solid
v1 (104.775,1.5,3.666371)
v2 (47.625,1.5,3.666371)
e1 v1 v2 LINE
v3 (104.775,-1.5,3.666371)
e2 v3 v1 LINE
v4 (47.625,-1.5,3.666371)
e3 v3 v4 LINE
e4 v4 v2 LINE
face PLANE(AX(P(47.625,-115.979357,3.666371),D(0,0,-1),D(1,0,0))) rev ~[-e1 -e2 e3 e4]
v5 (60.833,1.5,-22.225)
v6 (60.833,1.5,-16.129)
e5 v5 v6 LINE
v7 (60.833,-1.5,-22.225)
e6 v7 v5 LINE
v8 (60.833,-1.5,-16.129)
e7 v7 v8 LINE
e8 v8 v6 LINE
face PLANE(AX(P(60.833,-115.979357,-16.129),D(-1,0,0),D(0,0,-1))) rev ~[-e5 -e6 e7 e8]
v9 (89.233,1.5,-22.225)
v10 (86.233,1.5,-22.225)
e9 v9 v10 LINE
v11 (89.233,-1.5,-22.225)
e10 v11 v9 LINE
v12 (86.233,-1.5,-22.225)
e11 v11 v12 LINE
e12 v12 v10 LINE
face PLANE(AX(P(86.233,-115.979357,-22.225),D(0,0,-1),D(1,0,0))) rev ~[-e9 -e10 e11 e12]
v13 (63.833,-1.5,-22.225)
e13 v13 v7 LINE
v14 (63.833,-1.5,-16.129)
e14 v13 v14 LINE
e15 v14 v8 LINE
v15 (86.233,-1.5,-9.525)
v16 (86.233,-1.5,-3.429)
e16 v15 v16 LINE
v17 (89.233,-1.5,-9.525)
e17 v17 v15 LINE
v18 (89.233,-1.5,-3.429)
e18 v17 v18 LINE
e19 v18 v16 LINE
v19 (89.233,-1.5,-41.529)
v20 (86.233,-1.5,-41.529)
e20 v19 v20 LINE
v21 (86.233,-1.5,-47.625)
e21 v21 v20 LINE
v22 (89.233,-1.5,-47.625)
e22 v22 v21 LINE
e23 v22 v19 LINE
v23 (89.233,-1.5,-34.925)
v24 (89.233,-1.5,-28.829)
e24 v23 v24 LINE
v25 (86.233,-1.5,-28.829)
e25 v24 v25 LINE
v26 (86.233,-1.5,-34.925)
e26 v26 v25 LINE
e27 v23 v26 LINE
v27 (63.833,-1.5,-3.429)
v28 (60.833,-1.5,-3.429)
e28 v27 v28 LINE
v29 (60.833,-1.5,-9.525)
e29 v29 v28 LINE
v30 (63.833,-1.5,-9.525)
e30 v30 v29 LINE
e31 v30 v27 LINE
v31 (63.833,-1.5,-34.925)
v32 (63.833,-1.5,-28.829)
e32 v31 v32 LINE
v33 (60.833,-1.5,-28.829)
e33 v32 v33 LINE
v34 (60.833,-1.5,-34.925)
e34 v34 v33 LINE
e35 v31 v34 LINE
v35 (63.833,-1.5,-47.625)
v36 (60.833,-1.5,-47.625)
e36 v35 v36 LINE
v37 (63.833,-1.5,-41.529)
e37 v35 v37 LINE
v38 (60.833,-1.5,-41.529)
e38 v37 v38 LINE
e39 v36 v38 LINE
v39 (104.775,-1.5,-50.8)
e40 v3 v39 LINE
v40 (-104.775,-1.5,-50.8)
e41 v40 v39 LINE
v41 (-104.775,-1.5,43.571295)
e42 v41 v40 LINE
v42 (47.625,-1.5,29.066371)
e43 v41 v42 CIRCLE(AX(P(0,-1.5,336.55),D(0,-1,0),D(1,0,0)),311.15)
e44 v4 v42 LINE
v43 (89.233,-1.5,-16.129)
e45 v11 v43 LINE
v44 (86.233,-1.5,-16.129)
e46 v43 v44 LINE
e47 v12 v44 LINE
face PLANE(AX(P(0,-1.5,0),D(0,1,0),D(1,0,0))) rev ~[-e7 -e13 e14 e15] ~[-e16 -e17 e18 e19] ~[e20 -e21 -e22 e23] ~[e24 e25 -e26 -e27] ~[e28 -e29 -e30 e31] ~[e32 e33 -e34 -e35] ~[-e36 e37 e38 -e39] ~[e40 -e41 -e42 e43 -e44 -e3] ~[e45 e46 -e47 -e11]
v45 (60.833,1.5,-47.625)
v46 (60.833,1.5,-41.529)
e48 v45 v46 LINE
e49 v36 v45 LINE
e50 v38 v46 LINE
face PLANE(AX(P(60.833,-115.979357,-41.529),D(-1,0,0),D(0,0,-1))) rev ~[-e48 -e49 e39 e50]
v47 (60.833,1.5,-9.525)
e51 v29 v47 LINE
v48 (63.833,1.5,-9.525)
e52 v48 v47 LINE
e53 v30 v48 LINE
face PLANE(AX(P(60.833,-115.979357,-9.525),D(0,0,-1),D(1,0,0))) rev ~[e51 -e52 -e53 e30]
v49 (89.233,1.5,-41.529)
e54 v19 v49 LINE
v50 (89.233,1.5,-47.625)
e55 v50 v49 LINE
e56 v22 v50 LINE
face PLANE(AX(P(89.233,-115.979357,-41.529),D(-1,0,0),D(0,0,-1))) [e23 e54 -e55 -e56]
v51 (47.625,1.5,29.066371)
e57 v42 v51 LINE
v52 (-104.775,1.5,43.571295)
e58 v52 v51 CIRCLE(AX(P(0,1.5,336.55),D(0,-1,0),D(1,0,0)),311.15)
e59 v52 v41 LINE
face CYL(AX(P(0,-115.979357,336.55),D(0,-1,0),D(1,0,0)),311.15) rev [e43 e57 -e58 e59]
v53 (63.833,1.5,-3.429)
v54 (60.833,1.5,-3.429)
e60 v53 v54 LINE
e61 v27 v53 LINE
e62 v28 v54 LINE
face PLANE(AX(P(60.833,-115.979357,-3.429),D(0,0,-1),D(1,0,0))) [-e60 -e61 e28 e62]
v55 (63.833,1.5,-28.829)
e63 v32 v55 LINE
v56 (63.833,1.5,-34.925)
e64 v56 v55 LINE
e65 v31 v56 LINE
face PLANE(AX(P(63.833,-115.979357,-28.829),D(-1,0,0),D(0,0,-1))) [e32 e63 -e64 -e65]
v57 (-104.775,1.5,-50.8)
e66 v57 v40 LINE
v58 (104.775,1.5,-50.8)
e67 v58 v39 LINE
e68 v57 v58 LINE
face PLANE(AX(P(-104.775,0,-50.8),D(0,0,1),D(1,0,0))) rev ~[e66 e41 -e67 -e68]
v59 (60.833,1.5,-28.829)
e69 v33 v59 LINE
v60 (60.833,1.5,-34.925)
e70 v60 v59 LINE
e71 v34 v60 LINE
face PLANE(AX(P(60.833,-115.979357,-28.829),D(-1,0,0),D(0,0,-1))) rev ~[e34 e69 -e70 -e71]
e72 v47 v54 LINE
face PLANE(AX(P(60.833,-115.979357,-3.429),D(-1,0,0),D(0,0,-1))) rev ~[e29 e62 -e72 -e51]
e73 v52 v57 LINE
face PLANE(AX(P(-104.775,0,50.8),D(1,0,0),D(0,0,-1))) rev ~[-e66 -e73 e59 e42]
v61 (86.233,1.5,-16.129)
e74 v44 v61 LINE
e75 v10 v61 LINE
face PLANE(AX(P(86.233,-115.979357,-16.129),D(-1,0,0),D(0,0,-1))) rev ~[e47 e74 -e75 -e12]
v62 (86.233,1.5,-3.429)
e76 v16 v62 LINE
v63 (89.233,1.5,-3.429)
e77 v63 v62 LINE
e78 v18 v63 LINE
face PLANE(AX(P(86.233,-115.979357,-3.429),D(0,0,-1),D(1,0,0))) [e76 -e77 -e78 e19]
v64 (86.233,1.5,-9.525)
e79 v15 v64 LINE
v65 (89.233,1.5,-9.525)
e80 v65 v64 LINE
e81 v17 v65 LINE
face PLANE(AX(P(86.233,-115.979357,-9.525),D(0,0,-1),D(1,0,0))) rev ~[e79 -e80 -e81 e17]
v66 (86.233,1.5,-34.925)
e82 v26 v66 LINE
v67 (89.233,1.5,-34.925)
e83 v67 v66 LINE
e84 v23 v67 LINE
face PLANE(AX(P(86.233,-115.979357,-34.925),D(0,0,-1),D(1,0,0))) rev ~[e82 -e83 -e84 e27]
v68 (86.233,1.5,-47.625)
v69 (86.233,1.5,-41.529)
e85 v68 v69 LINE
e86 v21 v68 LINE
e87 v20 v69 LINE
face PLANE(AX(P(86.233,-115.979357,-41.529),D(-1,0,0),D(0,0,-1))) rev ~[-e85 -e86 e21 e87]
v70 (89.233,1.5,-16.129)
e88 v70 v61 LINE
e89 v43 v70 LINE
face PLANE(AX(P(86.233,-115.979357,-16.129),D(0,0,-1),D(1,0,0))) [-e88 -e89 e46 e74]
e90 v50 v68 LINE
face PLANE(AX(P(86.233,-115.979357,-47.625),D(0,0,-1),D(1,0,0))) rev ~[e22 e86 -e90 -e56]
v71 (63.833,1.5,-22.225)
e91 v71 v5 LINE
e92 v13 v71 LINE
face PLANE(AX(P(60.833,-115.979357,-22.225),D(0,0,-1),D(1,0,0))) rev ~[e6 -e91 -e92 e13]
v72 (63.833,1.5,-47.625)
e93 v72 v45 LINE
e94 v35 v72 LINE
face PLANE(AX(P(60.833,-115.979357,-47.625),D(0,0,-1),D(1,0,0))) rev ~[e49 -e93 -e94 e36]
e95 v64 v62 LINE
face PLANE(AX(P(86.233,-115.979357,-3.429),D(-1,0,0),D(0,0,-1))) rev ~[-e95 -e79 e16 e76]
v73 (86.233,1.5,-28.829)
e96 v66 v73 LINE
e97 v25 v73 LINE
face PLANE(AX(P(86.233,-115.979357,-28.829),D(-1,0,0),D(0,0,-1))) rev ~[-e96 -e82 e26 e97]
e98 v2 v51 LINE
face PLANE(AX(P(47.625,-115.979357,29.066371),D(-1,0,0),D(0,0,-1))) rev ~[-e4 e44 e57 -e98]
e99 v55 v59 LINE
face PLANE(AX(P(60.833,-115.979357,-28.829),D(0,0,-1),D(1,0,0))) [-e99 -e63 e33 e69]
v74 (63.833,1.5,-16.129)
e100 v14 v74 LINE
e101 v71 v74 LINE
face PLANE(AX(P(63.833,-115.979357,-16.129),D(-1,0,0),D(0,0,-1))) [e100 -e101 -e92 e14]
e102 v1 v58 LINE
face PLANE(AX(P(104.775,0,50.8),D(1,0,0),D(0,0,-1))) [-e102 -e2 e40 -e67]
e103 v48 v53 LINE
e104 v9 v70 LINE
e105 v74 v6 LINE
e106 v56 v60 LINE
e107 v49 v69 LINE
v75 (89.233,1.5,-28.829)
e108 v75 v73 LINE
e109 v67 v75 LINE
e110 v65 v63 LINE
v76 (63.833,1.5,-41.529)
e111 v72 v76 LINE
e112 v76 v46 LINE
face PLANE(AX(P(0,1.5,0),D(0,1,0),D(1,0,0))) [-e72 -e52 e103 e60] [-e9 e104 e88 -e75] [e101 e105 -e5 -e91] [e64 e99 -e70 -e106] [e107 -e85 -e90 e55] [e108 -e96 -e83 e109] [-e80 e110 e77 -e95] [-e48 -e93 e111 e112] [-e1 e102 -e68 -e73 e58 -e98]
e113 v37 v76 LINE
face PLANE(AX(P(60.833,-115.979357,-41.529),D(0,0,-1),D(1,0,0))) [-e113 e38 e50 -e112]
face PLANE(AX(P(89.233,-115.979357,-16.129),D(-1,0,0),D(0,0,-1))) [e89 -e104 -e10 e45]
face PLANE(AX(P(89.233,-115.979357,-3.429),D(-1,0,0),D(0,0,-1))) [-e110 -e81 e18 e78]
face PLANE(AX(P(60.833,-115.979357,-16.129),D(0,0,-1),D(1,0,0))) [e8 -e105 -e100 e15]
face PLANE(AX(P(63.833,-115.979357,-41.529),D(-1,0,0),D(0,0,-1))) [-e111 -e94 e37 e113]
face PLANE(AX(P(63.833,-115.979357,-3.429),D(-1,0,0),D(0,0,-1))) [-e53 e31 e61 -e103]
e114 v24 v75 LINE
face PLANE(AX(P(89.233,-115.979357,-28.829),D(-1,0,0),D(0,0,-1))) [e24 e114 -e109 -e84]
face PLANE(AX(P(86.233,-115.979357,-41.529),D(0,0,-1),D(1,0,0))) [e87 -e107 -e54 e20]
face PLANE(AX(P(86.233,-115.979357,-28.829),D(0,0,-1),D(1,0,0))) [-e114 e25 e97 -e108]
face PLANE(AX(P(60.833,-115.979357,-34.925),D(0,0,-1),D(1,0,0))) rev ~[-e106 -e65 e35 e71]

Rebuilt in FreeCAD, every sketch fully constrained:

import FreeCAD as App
import Part
import Sketcher
Q = App.Units.Quantity

doc = App.newDocument("Part")
body = doc.addObject("PartDesign::Body", "Body")

sketch1 = body.newObject("Sketcher::SketchObject", "Sketch")
sketch1.AttachmentSupport = (doc.getObject("XZ_Plane"), [""])
sketch1.MapMode = "FlatFace"
sketch1.addGeometry([
    Part.LineSegment(App.Vector(-105, -51, 0), App.Vector(-105, 51, 0)),
    Part.LineSegment(App.Vector(-105, 51, 0), App.Vector(105, 51, 0)),
    Part.LineSegment(App.Vector(105, 51, 0), App.Vector(105, -51, 0)),
    Part.LineSegment(App.Vector(105, -51, 0), App.Vector(-105, -51, 0)),
], False)
sketch1.addConstraint([
    Sketcher.Constraint("Coincident", 0, 2, 1, 1),
    Sketcher.Constraint("Coincident", 1, 2, 2, 1),
    Sketcher.Constraint("Coincident", 2, 2, 3, 1),
    Sketcher.Constraint("Coincident", 3, 2, 0, 1),
    Sketcher.Constraint("Vertical", 0),
    Sketcher.Constraint("Horizontal", 1),
    Sketcher.Constraint("Vertical", 2),
    Sketcher.Constraint("Horizontal", 3),
    Sketcher.Constraint("Symmetric", 0, 2, 2, 2, -1, 1),
    Sketcher.Constraint("DistanceY", 0, 1, 0, 2, Q("4 in")),
    Sketcher.Constraint("DistanceX", 1, 1, 1, 2, Q("8.25 in")),
])
pad1 = body.newObject("PartDesign::Pad", "Pad")
pad1.Profile = sketch1
pad1.Length = 3
pad1.Midplane = True

sketch2 = body.newObject("Sketcher::SketchObject", "Sketch001")
sketch2.AttachmentSupport = (doc.getObject("XZ_Plane"), [""])
sketch2.MapMode = "FlatFace"
sketch2.AttachmentOffset = App.Placement(App.Vector(0, 0, -1.5), App.Rotation())
sketch2.addGeometry(Part.Circle(App.Vector(0, 337, 0), App.Vector(0, 0, 1), 311), False)
sketch2.addConstraint([
    Sketcher.Constraint("PointOnObject", 0, 3, -2),
    Sketcher.Constraint("Diameter", 0, Q("24.5 in")),
    Sketcher.Constraint("DistanceY", -1, 1, 0, 3, Q("13.25 in")),
])
pocket1 = body.newObject("PartDesign::Pocket", "Pocket")
pocket1.Profile = sketch2
pocket1.Type = "ThroughAll"
pocket1.Midplane = True

sketch3 = body.newObject("Sketcher::SketchObject", "Sketch002")
sketch3.AttachmentSupport = (doc.getObject("XZ_Plane"), [""])
sketch3.MapMode = "FlatFace"
sketch3.AttachmentOffset = App.Placement(App.Vector(0, 0, -1.5), App.Rotation())
sketch3.addGeometry([
    Part.LineSegment(App.Vector(48, 4, 0), App.Vector(48, 29, 0)),
    Part.LineSegment(App.Vector(48, 29, 0), App.Vector(105, 44, 0)),
    Part.LineSegment(App.Vector(105, 44, 0), App.Vector(105, 4, 0)),
    Part.LineSegment(App.Vector(105, 4, 0), App.Vector(48, 4, 0)),
], False)
sketch3.addConstraint([
    Sketcher.Constraint("Coincident", 0, 2, 1, 1),
    Sketcher.Constraint("Coincident", 1, 2, 2, 1),
    Sketcher.Constraint("Coincident", 2, 2, 3, 1),
    Sketcher.Constraint("Coincident", 3, 2, 0, 1),
    Sketcher.Constraint("Vertical", 0),
    Sketcher.Constraint("Vertical", 2),
    Sketcher.Constraint("Horizontal", 3),
    Sketcher.Constraint("DistanceY", 0, 1, 0, 2, Q("1 in")),
    Sketcher.Constraint("DistanceX", 3, 2, 3, 1, Q("2.25 in")),
    Sketcher.Constraint("DistanceX", -1, 1, 0, 2, Q("1.875 in")),
    Sketcher.Constraint("Distance", 1, Q("58.961982 mm")),
    Sketcher.Constraint("DistanceY", -1, 1, 0, 2, Q("29.066371 mm")),
])
pocket2 = body.newObject("PartDesign::Pocket", "Pocket001")
pocket2.Profile = sketch3
pocket2.Type = "ThroughAll"
pocket2.Midplane = True

sketch4 = body.newObject("Sketcher::SketchObject", "Sketch003")
sketch4.AttachmentSupport = (doc.getObject("XZ_Plane"), [""])
sketch4.MapMode = "FlatFace"
sketch4.AttachmentOffset = App.Placement(App.Vector(0, 0, -1.5), App.Rotation())
sketch4.addGeometry([
    Part.LineSegment(App.Vector(86.2, -47.6, 0), App.Vector(86.2, -41.5, 0)),
    Part.LineSegment(App.Vector(86.2, -41.5, 0), App.Vector(89.2, -41.5, 0)),
    Part.LineSegment(App.Vector(89.2, -41.5, 0), App.Vector(89.2, -47.6, 0)),
    Part.LineSegment(App.Vector(89.2, -47.6, 0), App.Vector(86.2, -47.6, 0)),
    Part.LineSegment(App.Vector(86.2, -34.9, 0), App.Vector(86.2, -28.8, 0)),
    Part.LineSegment(App.Vector(86.2, -28.8, 0), App.Vector(89.2, -28.8, 0)),
    Part.LineSegment(App.Vector(89.2, -28.8, 0), App.Vector(89.2, -34.9, 0)),
    Part.LineSegment(App.Vector(89.2, -34.9, 0), App.Vector(86.2, -34.9, 0)),
    Part.LineSegment(App.Vector(86.2, -22.2, 0), App.Vector(86.2, -16.1, 0)),
    Part.LineSegment(App.Vector(86.2, -16.1, 0), App.Vector(89.2, -16.1, 0)),
    Part.LineSegment(App.Vector(89.2, -16.1, 0), App.Vector(89.2, -22.2, 0)),
    Part.LineSegment(App.Vector(89.2, -22.2, 0), App.Vector(86.2, -22.2, 0)),
    Part.LineSegment(App.Vector(86.2, -9.5, 0), App.Vector(86.2, -3.4, 0)),
    Part.LineSegment(App.Vector(86.2, -3.4, 0), App.Vector(89.2, -3.4, 0)),
    Part.LineSegment(App.Vector(89.2, -3.4, 0), App.Vector(89.2, -9.5, 0)),
    Part.LineSegment(App.Vector(89.2, -9.5, 0), App.Vector(86.2, -9.5, 0)),
    Part.LineSegment(App.Vector(60.8, -34.9, 0), App.Vector(60.8, -28.8, 0)),
    Part.LineSegment(App.Vector(60.8, -28.8, 0), App.Vector(63.8, -28.8, 0)),
    Part.LineSegment(App.Vector(63.8, -28.8, 0), App.Vector(63.8, -34.9, 0)),
    Part.LineSegment(App.Vector(63.8, -34.9, 0), App.Vector(60.8, -34.9, 0)),
    Part.LineSegment(App.Vector(60.8, -22.2, 0), App.Vector(60.8, -16.1, 0)),
    Part.LineSegment(App.Vector(60.8, -16.1, 0), App.Vector(63.8, -16.1, 0)),
    Part.LineSegment(App.Vector(63.8, -16.1, 0), App.Vector(63.8, -22.2, 0)),
    Part.LineSegment(App.Vector(63.8, -22.2, 0), App.Vector(60.8, -22.2, 0)),
    Part.LineSegment(App.Vector(60.8, -9.5, 0), App.Vector(60.8, -3.4, 0)),
    Part.LineSegment(App.Vector(60.8, -3.4, 0), App.Vector(63.8, -3.4, 0)),
    Part.LineSegment(App.Vector(63.8, -3.4, 0), App.Vector(63.8, -9.5, 0)),
    Part.LineSegment(App.Vector(63.8, -9.5, 0), App.Vector(60.8, -9.5, 0)),
    Part.LineSegment(App.Vector(60.8, -47.6, 0), App.Vector(60.8, -41.5, 0)),
    Part.LineSegment(App.Vector(60.8, -41.5, 0), App.Vector(63.8, -41.5, 0)),
    Part.LineSegment(App.Vector(63.8, -41.5, 0), App.Vector(63.8, -47.6, 0)),
    Part.LineSegment(App.Vector(63.8, -47.6, 0), App.Vector(60.8, -47.6, 0)),
], False)
sketch4.addConstraint([
    Sketcher.Constraint("Coincident", 0, 2, 1, 1),
    Sketcher.Constraint("Coincident", 1, 2, 2, 1),
    Sketcher.Constraint("Coincident", 2, 2, 3, 1),
    Sketcher.Constraint("Coincident", 3, 2, 0, 1),
    Sketcher.Constraint("Coincident", 4, 2, 5, 1),
    Sketcher.Constraint("Coincident", 5, 2, 6, 1),
    Sketcher.Constraint("Coincident", 6, 2, 7, 1),
    Sketcher.Constraint("Coincident", 7, 2, 4, 1),
    Sketcher.Constraint("Coincident", 8, 2, 9, 1),
    Sketcher.Constraint("Coincident", 9, 2, 10, 1),
    Sketcher.Constraint("Coincident", 10, 2, 11, 1),
    Sketcher.Constraint("Coincident", 11, 2, 8, 1),
    Sketcher.Constraint("Coincident", 12, 2, 13, 1),
    Sketcher.Constraint("Coincident", 13, 2, 14, 1),
    Sketcher.Constraint("Coincident", 14, 2, 15, 1),
    Sketcher.Constraint("Coincident", 15, 2, 12, 1),
    Sketcher.Constraint("Coincident", 16, 2, 17, 1),
    Sketcher.Constraint("Coincident", 17, 2, 18, 1),
    Sketcher.Constraint("Coincident", 18, 2, 19, 1),
    Sketcher.Constraint("Coincident", 19, 2, 16, 1),
    Sketcher.Constraint("Coincident", 20, 2, 21, 1),
    Sketcher.Constraint("Coincident", 21, 2, 22, 1),
    Sketcher.Constraint("Coincident", 22, 2, 23, 1),
    Sketcher.Constraint("Coincident", 23, 2, 20, 1),
    Sketcher.Constraint("Coincident", 24, 2, 25, 1),
    Sketcher.Constraint("Coincident", 25, 2, 26, 1),
    Sketcher.Constraint("Coincident", 26, 2, 27, 1),
    Sketcher.Constraint("Coincident", 27, 2, 24, 1),
    Sketcher.Constraint("Coincident", 28, 2, 29, 1),
    Sketcher.Constraint("Coincident", 29, 2, 30, 1),
    Sketcher.Constraint("Coincident", 30, 2, 31, 1),
    Sketcher.Constraint("Coincident", 31, 2, 28, 1),
    Sketcher.Constraint("Vertical", 0),
    Sketcher.Constraint("Horizontal", 1),
    Sketcher.Constraint("Vertical", 2),
    Sketcher.Constraint("Horizontal", 3),
    Sketcher.Constraint("Vertical", 4),
    Sketcher.Constraint("Horizontal", 5),
    Sketcher.Constraint("Vertical", 6),
    Sketcher.Constraint("Horizontal", 7),
    Sketcher.Constraint("Vertical", 8),
    Sketcher.Constraint("Horizontal", 9),
    Sketcher.Constraint("Vertical", 10),
    Sketcher.Constraint("Horizontal", 11),
    Sketcher.Constraint("Vertical", 12),
    Sketcher.Constraint("Horizontal", 13),
    Sketcher.Constraint("Vertical", 14),
    Sketcher.Constraint("Horizontal", 15),
    Sketcher.Constraint("Vertical", 16),
    Sketcher.Constraint("Horizontal", 17),
    Sketcher.Constraint("Vertical", 18),
    Sketcher.Constraint("Horizontal", 19),
    Sketcher.Constraint("Vertical", 20),
    Sketcher.Constraint("Horizontal", 21),
    Sketcher.Constraint("Vertical", 22),
    Sketcher.Constraint("Horizontal", 23),
    Sketcher.Constraint("Vertical", 24),
    Sketcher.Constraint("Horizontal", 25),
    Sketcher.Constraint("Vertical", 26),
    Sketcher.Constraint("Horizontal", 27),
    Sketcher.Constraint("Vertical", 28),
    Sketcher.Constraint("Horizontal", 29),
    Sketcher.Constraint("Vertical", 30),
    Sketcher.Constraint("Horizontal", 31),
    Sketcher.Constraint("Horizontal", 5, 2, 16, 2),
    Sketcher.Constraint("Horizontal", 7, 2, 18, 2),
    Sketcher.Constraint("Horizontal", 9, 2, 20, 2),
    Sketcher.Constraint("Horizontal", 11, 2, 22, 2),
    Sketcher.Constraint("Horizontal", 13, 2, 24, 2),
    Sketcher.Constraint("Horizontal", 15, 2, 26, 2),
    Sketcher.Constraint("Horizontal", 1, 2, 28, 2),
    Sketcher.Constraint("Horizontal", 3, 2, 30, 2),
    Sketcher.Constraint("Vertical", 3, 2, 4, 2),
    Sketcher.Constraint("Vertical", 2, 2, 5, 2),
    Sketcher.Constraint("Vertical", 7, 2, 8, 2),
    Sketcher.Constraint("Vertical", 6, 2, 9, 2),
    Sketcher.Constraint("Vertical", 11, 2, 12, 2),
    Sketcher.Constraint("Vertical", 10, 2, 13, 2),
    Sketcher.Constraint("Vertical", 19, 2, 20, 2),
    Sketcher.Constraint("Vertical", 18, 2, 21, 2),
    Sketcher.Constraint("Vertical", 23, 2, 24, 2),
    Sketcher.Constraint("Vertical", 22, 2, 25, 2),
    Sketcher.Constraint("Vertical", 27, 2, 28, 2),
    Sketcher.Constraint("Vertical", 26, 2, 29, 2),
    Sketcher.Constraint("Equal", 15, 17),
    Sketcher.Constraint("Equal", 2, 4),
    Sketcher.Constraint("Equal", 6, 8),
    Sketcher.Constraint("Equal", 10, 12),
    Sketcher.Constraint("DistanceY", 0, 2, 8, 2, Q("1 in")),
    Sketcher.Constraint("DistanceY", 4, 2, 12, 2, Q("1 in")),
    Sketcher.Constraint("DistanceX", 16, 2, 4, 2, Q("1 in")),
    Sketcher.Constraint("DistanceY", 0, 1, 0, 2, Q("0.24 in")),
    Sketcher.Constraint("DistanceY", 0, 2, 4, 2, Q("0.5 in")),
    Sketcher.Constraint("DistanceX", -1, 1, 0, 2, Q("3.395 in")),
    Sketcher.Constraint("DistanceY", 0, 2, -1, 1, Q("1.635 in")),
    Sketcher.Constraint("DistanceX", 1, 1, 1, 2, Q("3 mm")),
])
pocket3 = body.newObject("PartDesign::Pocket", "Pocket002")
pocket3.Profile = sketch4
pocket3.Type = "ThroughAll"
pocket3.Midplane = True

doc.recompute()
